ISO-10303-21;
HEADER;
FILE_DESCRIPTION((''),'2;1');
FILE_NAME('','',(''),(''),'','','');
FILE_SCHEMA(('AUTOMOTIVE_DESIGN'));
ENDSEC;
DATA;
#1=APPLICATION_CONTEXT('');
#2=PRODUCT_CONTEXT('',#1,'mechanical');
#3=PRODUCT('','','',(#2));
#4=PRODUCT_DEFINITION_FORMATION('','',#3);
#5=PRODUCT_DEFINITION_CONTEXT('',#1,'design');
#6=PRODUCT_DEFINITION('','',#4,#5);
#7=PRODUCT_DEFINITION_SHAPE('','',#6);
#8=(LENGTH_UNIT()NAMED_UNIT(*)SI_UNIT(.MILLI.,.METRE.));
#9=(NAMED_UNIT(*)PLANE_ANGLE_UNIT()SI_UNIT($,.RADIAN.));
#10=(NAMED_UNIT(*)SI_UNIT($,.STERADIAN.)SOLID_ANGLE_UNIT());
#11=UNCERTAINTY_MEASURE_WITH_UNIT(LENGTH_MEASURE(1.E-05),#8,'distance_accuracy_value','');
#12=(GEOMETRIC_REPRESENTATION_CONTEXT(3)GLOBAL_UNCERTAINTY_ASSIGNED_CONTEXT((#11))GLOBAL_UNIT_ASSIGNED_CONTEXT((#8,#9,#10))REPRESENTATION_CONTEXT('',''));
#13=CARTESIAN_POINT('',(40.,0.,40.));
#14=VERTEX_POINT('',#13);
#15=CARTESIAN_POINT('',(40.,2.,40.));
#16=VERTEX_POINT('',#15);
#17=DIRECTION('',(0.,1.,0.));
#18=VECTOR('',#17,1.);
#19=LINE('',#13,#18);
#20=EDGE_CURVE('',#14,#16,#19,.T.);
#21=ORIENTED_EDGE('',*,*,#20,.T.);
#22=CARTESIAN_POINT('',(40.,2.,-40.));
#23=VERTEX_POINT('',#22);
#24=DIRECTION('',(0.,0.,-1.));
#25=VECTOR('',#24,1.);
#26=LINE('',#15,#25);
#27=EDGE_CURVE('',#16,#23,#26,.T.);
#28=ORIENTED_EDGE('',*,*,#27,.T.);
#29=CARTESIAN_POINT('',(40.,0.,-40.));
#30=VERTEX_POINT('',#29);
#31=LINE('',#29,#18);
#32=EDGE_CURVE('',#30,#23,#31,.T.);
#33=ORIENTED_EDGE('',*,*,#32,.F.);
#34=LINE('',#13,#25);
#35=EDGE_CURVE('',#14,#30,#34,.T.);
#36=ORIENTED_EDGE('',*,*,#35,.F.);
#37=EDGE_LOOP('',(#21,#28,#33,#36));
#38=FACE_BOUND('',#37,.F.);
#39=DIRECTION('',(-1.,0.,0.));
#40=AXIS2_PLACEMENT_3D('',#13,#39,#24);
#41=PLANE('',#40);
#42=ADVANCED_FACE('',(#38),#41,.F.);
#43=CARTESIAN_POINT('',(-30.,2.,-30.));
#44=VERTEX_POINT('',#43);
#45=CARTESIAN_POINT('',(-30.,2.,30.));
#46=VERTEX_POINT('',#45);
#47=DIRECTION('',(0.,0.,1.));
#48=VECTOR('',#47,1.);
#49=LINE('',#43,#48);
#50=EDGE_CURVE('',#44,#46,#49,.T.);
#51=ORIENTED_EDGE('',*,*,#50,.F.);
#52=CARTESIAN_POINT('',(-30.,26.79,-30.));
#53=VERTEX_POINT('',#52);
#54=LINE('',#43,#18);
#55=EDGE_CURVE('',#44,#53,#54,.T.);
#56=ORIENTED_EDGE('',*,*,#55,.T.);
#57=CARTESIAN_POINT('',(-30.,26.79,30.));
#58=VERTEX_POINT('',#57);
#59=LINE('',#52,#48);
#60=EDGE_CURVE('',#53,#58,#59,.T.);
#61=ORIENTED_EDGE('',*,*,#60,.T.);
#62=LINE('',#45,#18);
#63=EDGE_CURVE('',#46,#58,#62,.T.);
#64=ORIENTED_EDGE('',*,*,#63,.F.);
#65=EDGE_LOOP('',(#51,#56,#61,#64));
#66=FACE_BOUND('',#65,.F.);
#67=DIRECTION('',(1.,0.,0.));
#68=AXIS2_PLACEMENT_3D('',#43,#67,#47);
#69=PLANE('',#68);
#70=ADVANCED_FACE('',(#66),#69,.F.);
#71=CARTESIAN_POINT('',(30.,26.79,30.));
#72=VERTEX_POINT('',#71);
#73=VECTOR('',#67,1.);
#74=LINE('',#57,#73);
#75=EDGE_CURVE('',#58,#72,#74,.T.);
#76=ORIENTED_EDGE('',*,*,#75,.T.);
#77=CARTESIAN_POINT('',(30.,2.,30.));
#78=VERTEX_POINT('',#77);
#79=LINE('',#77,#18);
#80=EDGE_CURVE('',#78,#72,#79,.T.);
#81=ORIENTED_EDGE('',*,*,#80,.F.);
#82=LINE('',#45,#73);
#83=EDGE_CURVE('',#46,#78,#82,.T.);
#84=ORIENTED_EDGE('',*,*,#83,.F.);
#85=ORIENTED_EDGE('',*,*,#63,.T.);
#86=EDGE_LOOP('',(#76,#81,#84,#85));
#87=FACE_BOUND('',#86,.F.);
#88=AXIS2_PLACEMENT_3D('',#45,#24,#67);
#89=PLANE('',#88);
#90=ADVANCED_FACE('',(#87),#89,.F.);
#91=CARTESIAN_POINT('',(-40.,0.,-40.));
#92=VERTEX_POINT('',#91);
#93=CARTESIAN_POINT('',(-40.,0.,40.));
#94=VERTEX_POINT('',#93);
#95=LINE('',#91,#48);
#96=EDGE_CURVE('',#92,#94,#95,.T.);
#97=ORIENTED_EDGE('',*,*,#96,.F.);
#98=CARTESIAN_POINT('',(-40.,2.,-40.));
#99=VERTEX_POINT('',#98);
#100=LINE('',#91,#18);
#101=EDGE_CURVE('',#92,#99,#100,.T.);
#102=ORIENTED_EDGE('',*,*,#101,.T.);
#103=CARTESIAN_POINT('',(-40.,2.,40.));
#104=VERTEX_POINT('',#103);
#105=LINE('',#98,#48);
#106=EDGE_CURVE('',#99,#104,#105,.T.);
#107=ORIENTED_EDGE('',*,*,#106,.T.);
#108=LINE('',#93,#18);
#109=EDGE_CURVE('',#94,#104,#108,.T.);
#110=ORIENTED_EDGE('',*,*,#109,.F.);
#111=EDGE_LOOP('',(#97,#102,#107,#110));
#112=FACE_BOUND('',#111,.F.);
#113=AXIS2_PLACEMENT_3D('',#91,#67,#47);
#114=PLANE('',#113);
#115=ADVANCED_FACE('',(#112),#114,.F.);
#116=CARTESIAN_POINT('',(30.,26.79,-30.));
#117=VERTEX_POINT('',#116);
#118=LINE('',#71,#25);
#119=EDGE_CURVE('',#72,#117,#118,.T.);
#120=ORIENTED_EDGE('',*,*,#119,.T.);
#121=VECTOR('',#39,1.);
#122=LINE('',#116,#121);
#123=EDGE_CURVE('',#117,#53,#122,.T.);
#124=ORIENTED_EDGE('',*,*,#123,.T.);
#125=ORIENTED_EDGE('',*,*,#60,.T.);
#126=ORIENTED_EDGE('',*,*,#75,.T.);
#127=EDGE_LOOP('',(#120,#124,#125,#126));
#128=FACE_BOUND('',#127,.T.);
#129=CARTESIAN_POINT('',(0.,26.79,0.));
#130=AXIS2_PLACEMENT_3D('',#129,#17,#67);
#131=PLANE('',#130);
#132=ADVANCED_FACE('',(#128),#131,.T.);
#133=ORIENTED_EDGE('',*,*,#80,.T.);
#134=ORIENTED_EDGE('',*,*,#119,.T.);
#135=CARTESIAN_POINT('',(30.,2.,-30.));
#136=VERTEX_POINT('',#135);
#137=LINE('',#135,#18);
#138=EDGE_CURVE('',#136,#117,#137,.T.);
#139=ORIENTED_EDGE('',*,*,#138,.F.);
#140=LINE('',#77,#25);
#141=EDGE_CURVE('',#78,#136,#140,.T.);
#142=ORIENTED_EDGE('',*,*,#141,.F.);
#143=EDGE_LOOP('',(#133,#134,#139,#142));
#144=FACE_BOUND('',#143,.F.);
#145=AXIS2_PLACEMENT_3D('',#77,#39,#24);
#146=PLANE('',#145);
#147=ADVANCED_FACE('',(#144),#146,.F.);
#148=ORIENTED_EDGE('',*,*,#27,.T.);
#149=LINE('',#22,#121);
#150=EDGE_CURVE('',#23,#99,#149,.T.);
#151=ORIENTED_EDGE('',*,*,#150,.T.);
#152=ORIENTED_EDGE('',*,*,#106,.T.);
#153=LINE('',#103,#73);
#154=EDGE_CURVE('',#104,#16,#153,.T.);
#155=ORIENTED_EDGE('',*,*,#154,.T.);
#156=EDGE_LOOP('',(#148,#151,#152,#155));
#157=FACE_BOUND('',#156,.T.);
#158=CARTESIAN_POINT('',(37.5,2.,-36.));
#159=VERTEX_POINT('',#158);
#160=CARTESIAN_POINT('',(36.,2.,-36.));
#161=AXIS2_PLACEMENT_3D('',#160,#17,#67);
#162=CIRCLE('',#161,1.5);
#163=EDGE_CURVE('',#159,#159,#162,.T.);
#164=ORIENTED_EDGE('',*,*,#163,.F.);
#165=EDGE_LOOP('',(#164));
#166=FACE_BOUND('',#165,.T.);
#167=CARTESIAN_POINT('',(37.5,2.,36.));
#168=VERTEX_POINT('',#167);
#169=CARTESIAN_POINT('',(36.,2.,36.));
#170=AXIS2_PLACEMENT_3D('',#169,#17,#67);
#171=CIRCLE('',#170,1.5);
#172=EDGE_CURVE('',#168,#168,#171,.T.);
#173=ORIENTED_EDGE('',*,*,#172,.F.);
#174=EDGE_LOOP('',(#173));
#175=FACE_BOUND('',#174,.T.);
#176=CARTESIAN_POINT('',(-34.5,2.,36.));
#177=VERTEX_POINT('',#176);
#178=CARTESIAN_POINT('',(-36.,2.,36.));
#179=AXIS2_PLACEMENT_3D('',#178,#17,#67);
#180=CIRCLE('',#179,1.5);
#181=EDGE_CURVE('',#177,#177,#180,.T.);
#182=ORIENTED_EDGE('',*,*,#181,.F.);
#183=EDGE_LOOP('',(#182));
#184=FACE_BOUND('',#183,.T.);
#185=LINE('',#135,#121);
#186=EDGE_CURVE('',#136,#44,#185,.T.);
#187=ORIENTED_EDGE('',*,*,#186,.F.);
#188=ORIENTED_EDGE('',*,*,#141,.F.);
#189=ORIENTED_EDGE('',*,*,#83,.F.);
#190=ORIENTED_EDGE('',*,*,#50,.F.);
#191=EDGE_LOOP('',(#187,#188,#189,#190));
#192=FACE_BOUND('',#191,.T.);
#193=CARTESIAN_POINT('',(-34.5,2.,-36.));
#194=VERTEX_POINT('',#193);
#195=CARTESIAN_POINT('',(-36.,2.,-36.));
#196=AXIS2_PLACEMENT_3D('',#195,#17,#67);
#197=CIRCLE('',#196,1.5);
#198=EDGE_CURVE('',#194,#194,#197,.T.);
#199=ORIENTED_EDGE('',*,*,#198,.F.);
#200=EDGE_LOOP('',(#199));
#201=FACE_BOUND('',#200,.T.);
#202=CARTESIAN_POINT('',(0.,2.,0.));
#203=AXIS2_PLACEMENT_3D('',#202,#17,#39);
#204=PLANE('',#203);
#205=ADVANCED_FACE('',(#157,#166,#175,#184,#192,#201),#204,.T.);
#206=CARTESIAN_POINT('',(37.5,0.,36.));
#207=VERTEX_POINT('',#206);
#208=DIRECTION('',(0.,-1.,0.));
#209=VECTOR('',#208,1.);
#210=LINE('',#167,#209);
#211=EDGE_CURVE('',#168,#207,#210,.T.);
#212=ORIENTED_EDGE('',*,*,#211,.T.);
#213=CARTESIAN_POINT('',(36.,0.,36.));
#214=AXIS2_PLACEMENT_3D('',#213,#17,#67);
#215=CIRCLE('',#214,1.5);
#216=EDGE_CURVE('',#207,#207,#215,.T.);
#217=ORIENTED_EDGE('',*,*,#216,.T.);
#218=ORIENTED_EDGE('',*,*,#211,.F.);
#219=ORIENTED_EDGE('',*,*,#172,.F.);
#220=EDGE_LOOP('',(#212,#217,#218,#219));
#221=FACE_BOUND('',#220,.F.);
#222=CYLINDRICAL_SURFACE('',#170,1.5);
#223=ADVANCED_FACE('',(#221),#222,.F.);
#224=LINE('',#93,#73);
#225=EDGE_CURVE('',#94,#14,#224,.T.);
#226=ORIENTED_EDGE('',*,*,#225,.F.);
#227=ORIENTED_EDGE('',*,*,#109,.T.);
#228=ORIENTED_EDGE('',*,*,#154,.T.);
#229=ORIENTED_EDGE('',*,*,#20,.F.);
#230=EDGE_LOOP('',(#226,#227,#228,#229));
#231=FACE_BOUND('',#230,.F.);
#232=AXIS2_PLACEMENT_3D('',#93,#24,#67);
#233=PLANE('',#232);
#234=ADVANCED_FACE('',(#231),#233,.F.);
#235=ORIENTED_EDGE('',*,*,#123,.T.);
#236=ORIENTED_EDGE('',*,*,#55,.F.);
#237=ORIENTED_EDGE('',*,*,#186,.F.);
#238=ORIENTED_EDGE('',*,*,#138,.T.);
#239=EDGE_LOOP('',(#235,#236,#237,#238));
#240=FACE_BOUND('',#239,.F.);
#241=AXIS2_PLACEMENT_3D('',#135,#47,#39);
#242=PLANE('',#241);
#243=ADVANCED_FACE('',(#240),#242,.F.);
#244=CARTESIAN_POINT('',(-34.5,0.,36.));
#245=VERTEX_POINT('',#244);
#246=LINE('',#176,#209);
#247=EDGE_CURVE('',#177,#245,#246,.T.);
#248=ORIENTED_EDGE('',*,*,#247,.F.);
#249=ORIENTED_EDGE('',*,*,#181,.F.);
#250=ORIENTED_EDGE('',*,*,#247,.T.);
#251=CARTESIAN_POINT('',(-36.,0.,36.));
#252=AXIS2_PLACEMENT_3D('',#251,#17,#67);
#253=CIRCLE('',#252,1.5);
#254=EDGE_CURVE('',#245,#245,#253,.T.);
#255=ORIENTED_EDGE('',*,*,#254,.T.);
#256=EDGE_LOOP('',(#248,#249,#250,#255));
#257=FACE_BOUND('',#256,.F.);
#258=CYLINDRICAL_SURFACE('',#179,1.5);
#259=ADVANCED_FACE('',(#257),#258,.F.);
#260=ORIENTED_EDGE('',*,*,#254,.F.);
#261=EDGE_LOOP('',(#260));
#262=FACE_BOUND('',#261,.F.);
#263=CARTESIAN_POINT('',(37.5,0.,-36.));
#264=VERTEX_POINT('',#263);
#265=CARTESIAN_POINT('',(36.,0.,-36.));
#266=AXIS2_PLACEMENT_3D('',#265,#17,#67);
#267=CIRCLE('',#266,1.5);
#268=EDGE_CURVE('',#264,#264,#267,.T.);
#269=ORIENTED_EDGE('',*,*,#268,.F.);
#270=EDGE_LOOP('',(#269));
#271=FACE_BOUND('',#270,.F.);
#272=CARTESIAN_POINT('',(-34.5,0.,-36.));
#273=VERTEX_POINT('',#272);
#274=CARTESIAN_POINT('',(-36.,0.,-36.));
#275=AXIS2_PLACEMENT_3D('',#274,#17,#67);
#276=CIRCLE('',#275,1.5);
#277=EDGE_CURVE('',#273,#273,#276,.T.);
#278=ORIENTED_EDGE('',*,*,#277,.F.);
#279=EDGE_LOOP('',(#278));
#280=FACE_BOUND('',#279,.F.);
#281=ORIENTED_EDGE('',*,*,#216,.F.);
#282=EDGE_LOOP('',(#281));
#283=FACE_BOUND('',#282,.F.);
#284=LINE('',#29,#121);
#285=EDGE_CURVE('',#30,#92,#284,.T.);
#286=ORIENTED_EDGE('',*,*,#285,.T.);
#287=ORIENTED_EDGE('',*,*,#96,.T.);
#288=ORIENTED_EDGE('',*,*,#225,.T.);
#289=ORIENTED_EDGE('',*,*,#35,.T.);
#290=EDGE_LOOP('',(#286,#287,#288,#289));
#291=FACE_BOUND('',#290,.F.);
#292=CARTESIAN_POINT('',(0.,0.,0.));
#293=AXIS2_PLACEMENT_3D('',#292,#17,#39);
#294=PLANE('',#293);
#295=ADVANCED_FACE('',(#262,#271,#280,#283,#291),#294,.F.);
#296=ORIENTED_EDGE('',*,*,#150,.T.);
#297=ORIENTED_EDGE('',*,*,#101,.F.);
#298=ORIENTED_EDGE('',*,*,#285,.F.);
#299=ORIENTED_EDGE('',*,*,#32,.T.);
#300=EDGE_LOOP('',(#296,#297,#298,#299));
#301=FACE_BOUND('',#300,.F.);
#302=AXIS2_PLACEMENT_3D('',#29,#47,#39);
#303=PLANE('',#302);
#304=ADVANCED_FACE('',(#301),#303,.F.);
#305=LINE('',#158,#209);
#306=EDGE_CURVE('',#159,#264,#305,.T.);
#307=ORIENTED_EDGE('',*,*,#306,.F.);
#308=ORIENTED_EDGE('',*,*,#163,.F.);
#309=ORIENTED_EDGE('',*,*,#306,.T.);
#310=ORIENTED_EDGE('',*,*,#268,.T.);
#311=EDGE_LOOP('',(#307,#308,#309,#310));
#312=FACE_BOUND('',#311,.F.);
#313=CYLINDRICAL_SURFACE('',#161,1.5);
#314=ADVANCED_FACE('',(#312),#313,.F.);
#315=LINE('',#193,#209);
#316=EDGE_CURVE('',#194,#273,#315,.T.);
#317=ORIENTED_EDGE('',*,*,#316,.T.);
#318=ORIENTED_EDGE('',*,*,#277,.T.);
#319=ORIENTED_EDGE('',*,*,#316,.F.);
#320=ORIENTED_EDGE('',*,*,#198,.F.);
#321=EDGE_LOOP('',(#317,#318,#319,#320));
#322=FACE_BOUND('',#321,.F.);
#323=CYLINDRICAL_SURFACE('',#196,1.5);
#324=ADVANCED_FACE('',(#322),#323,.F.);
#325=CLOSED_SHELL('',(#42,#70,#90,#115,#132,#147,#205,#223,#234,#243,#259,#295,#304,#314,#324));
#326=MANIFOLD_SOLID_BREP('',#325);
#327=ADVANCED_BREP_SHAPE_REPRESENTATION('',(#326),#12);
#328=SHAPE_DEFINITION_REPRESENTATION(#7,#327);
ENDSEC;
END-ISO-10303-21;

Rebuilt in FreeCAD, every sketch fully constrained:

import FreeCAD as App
import Part
import Sketcher
from FreeCAD import Vector
Q = App.Units.Quantity

doc = App.newDocument("Part")
params = doc.addObject("Spreadsheet::Sheet", "Params")
for row, (alias, value) in enumerate([
    ("sketch1_width", "80 mm"),
    ("pad1_length", "2 mm"),
    ("sketch2_diameter", "3 mm"),
    ("sketch3_width", "60 mm"),
    ("pad2_length", "24.79 mm"),
], start=1):
    params.set(f"A{row}", alias)
    params.set(f"B{row}", "=" + value)
    params.setAlias(f"B{row}", alias)

body = doc.addObject("PartDesign::Body", "Body")

# Sketch on XZ plane
sketch1 = body.newObject("Sketcher::SketchObject", "Sketch")
sketch1.AttachmentSupport = (doc.getObject("XZ_Plane"), [""])
sketch1.MapMode = "FlatFace"
sketch1.addGeometry(Part.LineSegment(Vector(-40, -40, 0), Vector(-40, 40, 0)), False)
sketch1.addGeometry(Part.LineSegment(Vector(-40, 40, 0), Vector(40, 40, 0)), False)
sketch1.addGeometry(Part.LineSegment(Vector(40, 40, 0), Vector(40, -40, 0)), False)
sketch1.addGeometry(Part.LineSegment(Vector(40, -40, 0), Vector(-40, -40, 0)), False)
sketch1.addConstraint(Sketcher.Constraint("Coincident", 0, 2, 1, 1))
sketch1.addConstraint(Sketcher.Constraint("Coincident", 1, 2, 2, 1))
sketch1.addConstraint(Sketcher.Constraint("Coincident", 2, 2, 3, 1))
sketch1.addConstraint(Sketcher.Constraint("Coincident", 3, 2, 0, 1))
sketch1.addConstraint(Sketcher.Constraint("Vertical", 0))
sketch1.addConstraint(Sketcher.Constraint("Horizontal", 1))
sketch1.addConstraint(Sketcher.Constraint("Vertical", 2))
sketch1.addConstraint(Sketcher.Constraint("Horizontal", 3))
sketch1.addConstraint(Sketcher.Constraint("Symmetric", 0, 2, 2, 2, -1, 1))
sketch1.addConstraint(Sketcher.Constraint("Equal", 3, 0))
sketch1.addConstraint(Sketcher.Constraint("DistanceX", 1, 1, 1, 2, Q("80 mm")))
sketch1.setExpression("Constraints[10]", "Params.sketch1_width")
pad1 = body.newObject("PartDesign::Pad", "Pad")
pad1.Profile = sketch1
pad1.setExpression("Length", "Params.pad1_length")
pad1.Reversed = True

# Sketch on XZ plane
sketch2 = body.newObject("Sketcher::SketchObject", "Sketch001")
sketch2.AttachmentSupport = (doc.getObject("XZ_Plane"), [""])
sketch2.MapMode = "FlatFace"
sketch2.AttachmentOffset = App.Placement(Vector(0, 0, -2), App.Rotation())
sketch2.addGeometry(Part.Circle(Vector(-36, 36, 0), Vector(0, 0, 1), 1.5), False)
sketch2.addGeometry(Part.Circle(Vector(-36, -36, 0), Vector(0, 0, 1), 1.5), False)
sketch2.addGeometry(Part.Circle(Vector(36, -36, 0), Vector(0, 0, 1), 1.5), False)
sketch2.addGeometry(Part.Circle(Vector(36, 36, 0), Vector(0, 0, 1), 1.5), False)
sketch2.addConstraint(Sketcher.Constraint("Equal", 0, 1))
sketch2.addConstraint(Sketcher.Constraint("Equal", 1, 2))
sketch2.addConstraint(Sketcher.Constraint("Equal", 2, 3))
sketch2.addConstraint(Sketcher.Constraint("Symmetric", 0, 3, 2, 3, -1, 1))
sketch2.addConstraint(Sketcher.Constraint("Symmetric", 1, 3, 3, 3, -1, 1))
sketch2.addConstraint(Sketcher.Constraint("Symmetric", 1, 3, 2, 3, -2))
sketch2.addConstraint(Sketcher.Constraint("Diameter", 0, Q("3 mm")))
sketch2.addConstraint(Sketcher.Constraint("DistanceX", 0, 3, -1, 1, Q("36 mm")))
sketch2.addConstraint(Sketcher.Constraint("DistanceY", -1, 1, 0, 3, Q("36 mm")))
sketch2.setExpression("Constraints[6]", "Params.sketch2_diameter")
pocket1 = body.newObject("PartDesign::Pocket", "Pocket")
pocket1.Profile = sketch2
pocket1.Type = "ThroughAll"
pocket1.Reversed = True

# Sketch on XZ plane
sketch3 = body.newObject("Sketcher::SketchObject", "Sketch002")
sketch3.AttachmentSupport = (doc.getObject("XZ_Plane"), [""])
sketch3.MapMode = "FlatFace"
sketch3.AttachmentOffset = App.Placement(Vector(0, 0, -2), App.Rotation())
sketch3.addGeometry(Part.LineSegment(Vector(-30, -30, 0), Vector(-30, 30, 0)), False)
sketch3.addGeometry(Part.LineSegment(Vector(-30, 30, 0), Vector(30, 30, 0)), False)
sketch3.addGeometry(Part.LineSegment(Vector(30, 30, 0), Vector(30, -30, 0)), False)
sketch3.addGeometry(Part.LineSegment(Vector(30, -30, 0), Vector(-30, -30, 0)), False)
sketch3.addConstraint(Sketcher.Constraint("Coincident", 0, 2, 1, 1))
sketch3.addConstraint(Sketcher.Constraint("Coincident", 1, 2, 2, 1))
sketch3.addConstraint(Sketcher.Constraint("Coincident", 2, 2, 3, 1))
sketch3.addConstraint(Sketcher.Constraint("Coincident", 3, 2, 0, 1))
sketch3.addConstraint(Sketcher.Constraint("Vertical", 0))
sketch3.addConstraint(Sketcher.Constraint("Horizontal", 1))
sketch3.addConstraint(Sketcher.Constraint("Vertical", 2))
sketch3.addConstraint(Sketcher.Constraint("Horizontal", 3))
sketch3.addConstraint(Sketcher.Constraint("Symmetric", 0, 2, 2, 2, -1, 1))
sketch3.addConstraint(Sketcher.Constraint("Equal", 3, 0))
sketch3.addConstraint(Sketcher.Constraint("DistanceX", 1, 1, 1, 2, Q("60 mm")))
sketch3.setExpression("Constraints[10]", "Params.sketch3_width")
pad2 = body.newObject("PartDesign::Pad", "Pad001")
pad2.Profile = sketch3
pad2.setExpression("Length", "Params.pad2_length")
pad2.Reversed = True

doc.recompute()
